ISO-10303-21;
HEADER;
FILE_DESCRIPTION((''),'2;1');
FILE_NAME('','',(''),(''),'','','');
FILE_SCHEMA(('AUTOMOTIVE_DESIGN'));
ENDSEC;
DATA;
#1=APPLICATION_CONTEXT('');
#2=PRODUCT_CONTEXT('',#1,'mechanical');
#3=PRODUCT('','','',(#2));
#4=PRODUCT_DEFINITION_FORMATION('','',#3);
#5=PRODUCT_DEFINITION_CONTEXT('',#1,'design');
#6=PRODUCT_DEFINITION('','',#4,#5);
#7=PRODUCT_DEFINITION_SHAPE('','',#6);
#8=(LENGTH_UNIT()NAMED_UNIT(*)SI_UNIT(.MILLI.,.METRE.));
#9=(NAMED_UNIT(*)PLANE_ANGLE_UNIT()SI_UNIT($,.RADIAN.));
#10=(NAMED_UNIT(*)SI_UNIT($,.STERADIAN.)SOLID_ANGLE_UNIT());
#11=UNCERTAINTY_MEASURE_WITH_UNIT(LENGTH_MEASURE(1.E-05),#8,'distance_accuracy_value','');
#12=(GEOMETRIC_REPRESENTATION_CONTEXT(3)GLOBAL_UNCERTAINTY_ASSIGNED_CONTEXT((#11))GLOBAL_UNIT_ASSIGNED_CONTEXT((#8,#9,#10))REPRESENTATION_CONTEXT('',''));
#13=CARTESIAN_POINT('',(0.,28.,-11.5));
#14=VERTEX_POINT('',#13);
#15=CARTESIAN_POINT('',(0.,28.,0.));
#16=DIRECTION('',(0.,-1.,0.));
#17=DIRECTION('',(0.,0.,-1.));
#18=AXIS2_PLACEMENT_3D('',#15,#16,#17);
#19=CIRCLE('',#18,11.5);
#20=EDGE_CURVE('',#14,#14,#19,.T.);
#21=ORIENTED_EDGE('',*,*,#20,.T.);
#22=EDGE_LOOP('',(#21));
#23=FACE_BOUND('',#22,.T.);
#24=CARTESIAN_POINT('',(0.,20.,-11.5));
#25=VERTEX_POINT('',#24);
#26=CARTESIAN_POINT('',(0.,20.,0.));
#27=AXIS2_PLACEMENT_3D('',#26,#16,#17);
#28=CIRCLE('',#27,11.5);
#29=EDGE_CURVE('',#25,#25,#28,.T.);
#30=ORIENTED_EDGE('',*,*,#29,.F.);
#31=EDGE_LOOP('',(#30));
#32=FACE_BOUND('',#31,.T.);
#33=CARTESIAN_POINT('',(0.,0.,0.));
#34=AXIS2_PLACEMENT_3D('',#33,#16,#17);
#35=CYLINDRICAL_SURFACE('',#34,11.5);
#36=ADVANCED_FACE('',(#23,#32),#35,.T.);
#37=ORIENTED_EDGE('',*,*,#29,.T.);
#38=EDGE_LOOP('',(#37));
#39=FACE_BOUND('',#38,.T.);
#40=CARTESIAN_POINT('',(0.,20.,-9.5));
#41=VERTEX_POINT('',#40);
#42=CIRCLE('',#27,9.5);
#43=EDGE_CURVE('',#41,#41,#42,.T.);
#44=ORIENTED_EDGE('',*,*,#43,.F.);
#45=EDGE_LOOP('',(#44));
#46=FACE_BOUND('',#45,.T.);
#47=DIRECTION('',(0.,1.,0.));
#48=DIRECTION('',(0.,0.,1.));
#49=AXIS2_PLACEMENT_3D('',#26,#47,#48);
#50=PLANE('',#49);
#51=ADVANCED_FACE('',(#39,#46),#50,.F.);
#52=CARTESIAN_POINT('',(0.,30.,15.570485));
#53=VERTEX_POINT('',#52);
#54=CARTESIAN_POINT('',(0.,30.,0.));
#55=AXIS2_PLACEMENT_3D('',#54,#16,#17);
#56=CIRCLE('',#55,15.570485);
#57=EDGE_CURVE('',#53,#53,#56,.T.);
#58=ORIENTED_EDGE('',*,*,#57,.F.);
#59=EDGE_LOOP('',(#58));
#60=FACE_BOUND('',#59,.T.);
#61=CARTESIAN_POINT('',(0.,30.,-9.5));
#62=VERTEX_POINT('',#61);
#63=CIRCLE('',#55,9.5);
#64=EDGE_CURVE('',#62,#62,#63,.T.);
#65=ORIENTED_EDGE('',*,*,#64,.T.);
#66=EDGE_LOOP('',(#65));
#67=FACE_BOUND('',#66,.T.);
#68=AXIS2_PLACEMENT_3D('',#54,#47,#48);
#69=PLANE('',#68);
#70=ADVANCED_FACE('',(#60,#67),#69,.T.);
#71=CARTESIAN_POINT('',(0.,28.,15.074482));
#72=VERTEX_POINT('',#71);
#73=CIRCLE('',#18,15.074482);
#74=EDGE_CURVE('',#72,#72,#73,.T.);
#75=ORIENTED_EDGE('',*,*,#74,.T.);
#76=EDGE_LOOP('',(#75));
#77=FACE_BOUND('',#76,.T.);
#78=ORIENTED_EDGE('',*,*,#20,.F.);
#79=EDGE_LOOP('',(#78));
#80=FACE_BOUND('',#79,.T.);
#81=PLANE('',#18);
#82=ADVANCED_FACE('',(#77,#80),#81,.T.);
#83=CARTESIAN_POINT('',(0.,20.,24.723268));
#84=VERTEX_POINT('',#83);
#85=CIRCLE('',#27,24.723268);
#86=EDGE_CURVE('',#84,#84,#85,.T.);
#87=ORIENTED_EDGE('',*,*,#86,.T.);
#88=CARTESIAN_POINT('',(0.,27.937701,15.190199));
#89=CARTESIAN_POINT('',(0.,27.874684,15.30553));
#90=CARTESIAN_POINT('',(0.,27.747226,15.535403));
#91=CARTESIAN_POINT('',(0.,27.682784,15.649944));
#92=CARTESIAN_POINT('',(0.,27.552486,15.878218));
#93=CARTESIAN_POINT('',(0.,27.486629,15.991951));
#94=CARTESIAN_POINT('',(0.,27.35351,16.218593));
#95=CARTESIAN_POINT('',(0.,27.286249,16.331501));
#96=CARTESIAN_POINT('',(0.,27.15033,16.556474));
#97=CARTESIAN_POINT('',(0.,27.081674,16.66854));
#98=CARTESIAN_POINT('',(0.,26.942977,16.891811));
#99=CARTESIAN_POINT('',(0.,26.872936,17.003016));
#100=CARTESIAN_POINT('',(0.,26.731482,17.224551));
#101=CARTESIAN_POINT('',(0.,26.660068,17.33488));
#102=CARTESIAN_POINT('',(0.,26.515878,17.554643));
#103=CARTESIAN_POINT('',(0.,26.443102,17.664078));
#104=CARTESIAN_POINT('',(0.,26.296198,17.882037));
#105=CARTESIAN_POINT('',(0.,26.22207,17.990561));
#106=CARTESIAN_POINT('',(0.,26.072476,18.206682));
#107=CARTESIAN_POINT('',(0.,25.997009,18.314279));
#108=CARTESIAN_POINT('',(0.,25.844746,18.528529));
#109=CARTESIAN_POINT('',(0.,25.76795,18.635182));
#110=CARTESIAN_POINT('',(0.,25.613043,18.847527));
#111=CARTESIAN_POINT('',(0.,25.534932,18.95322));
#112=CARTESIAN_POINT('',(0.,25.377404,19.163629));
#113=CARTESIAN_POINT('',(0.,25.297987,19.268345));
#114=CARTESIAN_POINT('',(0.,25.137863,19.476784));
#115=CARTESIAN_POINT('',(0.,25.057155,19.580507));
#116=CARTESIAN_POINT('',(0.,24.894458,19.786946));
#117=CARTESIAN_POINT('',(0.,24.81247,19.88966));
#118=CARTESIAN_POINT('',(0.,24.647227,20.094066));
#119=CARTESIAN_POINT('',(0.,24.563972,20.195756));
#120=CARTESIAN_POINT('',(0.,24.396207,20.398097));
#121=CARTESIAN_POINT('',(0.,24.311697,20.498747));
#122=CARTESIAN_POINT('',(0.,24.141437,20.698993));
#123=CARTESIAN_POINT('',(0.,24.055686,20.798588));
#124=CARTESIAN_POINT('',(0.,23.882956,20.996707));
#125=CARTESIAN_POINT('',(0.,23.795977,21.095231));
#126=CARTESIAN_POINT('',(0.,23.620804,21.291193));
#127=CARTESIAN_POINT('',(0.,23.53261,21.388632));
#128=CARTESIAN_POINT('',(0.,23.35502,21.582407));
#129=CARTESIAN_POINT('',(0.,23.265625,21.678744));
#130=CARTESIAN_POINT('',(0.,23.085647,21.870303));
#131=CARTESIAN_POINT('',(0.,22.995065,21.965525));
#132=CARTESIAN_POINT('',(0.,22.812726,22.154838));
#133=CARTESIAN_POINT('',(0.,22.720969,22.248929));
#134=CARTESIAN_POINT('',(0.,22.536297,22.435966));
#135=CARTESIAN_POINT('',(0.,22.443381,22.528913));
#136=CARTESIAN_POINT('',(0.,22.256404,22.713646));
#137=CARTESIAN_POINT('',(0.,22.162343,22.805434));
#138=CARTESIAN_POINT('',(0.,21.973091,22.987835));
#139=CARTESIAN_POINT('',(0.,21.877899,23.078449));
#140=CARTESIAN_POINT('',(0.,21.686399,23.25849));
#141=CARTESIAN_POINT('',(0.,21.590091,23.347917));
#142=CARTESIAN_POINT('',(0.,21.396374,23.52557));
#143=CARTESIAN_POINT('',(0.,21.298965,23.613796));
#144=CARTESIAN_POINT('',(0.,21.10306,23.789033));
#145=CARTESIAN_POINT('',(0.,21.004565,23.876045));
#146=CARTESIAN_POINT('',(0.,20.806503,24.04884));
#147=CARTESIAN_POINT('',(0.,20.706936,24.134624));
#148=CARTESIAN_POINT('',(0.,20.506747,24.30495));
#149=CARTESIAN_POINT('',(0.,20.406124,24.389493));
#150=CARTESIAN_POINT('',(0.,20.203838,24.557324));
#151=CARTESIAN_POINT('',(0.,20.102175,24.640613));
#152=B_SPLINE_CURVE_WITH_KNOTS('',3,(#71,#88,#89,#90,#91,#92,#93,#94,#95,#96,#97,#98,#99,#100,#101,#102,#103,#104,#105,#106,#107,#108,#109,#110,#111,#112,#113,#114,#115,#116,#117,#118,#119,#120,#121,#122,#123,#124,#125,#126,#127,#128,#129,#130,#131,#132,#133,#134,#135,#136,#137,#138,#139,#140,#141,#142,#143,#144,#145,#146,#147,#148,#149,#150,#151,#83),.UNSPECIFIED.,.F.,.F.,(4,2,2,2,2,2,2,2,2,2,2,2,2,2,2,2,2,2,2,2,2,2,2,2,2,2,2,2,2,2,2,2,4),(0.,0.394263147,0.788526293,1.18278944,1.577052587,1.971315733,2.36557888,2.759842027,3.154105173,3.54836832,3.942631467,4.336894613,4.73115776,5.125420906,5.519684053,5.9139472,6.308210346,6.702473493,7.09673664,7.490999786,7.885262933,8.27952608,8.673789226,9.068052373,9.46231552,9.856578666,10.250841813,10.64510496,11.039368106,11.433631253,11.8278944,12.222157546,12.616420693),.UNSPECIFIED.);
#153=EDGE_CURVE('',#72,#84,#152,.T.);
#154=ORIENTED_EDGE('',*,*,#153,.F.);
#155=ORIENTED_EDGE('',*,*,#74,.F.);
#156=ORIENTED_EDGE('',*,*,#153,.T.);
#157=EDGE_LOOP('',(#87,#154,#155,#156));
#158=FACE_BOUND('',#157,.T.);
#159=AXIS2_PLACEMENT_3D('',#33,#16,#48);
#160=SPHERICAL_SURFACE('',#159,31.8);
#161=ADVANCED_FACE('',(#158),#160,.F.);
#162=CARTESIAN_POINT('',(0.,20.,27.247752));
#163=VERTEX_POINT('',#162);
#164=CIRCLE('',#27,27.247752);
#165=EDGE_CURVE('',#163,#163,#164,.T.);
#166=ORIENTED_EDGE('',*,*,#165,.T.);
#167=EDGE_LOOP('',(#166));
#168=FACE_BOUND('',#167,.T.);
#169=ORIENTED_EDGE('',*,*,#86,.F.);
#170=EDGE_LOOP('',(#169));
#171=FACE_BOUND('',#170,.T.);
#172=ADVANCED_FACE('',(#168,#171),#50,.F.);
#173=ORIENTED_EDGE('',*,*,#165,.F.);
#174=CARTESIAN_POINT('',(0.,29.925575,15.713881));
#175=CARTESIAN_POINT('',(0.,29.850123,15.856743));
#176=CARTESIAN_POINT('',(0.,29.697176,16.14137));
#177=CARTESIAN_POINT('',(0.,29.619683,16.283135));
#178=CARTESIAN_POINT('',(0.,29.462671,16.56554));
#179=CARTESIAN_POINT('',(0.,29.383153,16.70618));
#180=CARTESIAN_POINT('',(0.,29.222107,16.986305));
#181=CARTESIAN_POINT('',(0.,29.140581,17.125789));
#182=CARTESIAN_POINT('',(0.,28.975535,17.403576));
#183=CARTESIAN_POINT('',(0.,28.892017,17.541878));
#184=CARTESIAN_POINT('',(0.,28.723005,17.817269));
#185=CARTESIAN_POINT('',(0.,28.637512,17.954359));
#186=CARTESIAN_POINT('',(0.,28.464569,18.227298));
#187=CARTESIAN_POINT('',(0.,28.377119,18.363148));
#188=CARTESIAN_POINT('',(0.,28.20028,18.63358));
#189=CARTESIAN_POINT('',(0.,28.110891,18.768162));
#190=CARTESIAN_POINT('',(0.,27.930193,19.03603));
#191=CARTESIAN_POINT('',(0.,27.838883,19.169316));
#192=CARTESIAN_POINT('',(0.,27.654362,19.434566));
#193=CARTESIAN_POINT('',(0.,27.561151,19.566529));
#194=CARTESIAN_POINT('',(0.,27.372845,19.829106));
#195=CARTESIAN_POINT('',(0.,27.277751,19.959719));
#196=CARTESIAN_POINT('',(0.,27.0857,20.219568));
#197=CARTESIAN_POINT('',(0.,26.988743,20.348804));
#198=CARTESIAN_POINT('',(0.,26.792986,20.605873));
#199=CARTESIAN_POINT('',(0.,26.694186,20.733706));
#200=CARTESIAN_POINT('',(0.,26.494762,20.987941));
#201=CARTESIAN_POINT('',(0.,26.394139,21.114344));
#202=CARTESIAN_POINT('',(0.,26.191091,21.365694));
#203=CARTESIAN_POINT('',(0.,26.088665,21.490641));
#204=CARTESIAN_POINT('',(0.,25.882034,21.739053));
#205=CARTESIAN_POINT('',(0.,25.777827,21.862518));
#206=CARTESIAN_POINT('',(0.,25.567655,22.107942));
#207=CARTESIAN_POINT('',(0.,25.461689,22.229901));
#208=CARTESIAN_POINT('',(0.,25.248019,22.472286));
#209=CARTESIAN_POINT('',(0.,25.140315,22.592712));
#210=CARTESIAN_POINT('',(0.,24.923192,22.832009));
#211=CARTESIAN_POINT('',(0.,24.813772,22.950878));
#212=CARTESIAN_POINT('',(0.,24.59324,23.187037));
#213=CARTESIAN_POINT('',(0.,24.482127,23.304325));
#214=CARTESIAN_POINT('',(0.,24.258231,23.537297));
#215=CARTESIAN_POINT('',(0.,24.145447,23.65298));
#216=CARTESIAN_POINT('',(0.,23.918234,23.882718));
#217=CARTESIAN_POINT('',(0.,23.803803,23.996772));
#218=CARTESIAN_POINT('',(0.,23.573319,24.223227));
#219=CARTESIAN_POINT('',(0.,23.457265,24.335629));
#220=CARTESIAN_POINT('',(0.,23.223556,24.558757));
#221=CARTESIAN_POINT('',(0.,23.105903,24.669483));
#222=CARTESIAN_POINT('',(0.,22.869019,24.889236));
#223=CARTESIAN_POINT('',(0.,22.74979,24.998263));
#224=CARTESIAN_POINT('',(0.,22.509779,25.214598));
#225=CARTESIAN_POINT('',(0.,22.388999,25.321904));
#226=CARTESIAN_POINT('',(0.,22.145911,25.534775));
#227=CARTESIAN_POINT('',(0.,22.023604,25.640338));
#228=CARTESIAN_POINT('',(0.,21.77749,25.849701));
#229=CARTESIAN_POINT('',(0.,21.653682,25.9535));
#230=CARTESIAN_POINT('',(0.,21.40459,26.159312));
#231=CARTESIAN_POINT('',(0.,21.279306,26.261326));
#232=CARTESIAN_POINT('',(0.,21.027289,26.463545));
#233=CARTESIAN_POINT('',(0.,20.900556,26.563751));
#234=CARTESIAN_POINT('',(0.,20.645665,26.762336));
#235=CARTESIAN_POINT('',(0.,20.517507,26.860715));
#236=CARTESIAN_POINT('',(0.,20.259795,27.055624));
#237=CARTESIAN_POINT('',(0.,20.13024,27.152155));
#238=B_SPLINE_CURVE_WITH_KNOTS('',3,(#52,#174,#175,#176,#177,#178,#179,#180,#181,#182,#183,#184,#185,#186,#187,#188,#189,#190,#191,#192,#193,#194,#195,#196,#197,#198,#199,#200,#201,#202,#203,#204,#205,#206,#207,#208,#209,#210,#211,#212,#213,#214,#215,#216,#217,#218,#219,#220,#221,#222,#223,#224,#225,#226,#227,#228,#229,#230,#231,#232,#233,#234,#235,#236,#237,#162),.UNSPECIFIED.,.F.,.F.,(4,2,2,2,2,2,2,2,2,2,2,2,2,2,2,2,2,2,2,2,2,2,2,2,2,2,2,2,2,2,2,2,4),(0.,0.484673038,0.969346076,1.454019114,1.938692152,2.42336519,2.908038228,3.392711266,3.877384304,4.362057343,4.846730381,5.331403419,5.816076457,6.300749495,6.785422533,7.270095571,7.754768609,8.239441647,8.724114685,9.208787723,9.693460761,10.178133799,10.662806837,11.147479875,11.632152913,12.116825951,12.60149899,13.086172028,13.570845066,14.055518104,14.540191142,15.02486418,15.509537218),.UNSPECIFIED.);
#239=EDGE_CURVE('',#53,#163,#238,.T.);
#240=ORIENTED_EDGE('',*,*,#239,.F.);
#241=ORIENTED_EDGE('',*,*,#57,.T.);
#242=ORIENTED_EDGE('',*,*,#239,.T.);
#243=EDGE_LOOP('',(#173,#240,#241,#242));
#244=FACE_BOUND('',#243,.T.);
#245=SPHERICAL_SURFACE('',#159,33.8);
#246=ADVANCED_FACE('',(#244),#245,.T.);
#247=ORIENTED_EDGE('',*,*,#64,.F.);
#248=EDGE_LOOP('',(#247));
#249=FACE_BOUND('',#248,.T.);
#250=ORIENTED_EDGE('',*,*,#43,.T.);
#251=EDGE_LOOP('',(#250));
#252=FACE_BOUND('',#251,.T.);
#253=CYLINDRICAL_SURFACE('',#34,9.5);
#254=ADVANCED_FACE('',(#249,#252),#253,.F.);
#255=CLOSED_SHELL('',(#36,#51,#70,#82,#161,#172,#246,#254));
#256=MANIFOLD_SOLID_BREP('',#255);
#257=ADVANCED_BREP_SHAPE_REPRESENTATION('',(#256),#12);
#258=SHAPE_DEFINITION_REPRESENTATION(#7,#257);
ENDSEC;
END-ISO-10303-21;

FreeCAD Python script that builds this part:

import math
import FreeCAD as App
import Part
import Sketcher

doc = App.newDocument("Part")
body = doc.addObject("PartDesign::Body", "Body")

# Sketch on YZ plane
sketch1 = doc.addObject("Sketcher::SketchObject", "Sketch")
body.addObject(sketch1)
sketch1.AttachmentSupport = (doc.YZ_Plane, [""])
sketch1.MapMode = "FlatFace"
sketch1.addGeometry(Part.LineSegment(App.Vector(28, 11.5, 0), App.Vector(20, 11.5, 0)), False)
sketch1.addGeometry(Part.LineSegment(App.Vector(20, 11.5, 0), App.Vector(20, 9.5, 0)), False)
sketch1.addGeometry(Part.LineSegment(App.Vector(20, 9.5, 0), App.Vector(30, 9.5, 0)), False)
sketch1.addGeometry(Part.LineSegment(App.Vector(30, 9.5, 0), App.Vector(30, 15.6, 0)), False)
sketch1.addGeometry(Part.ArcOfCircle(Part.Circle(App.Vector(0, 0, 0), App.Vector(0, 0, 1), 33.8), math.radians(27), math.radians(54)), False)
sketch1.addGeometry(Part.LineSegment(App.Vector(20, 27.2, 0), App.Vector(20, 24.7, 0)), False)
sketch1.addGeometry(Part.ArcOfCircle(Part.Circle(App.Vector(0, 0, 0), App.Vector(0, 0, 1), 31.8), math.radians(28), math.radians(51)), False)
sketch1.addGeometry(Part.LineSegment(App.Vector(28, 15.1, 0), App.Vector(28, 11.5, 0)), False)
sketch1.addConstraint(Sketcher.Constraint("Coincident", 0, 2, 1, 1))
sketch1.addConstraint(Sketcher.Constraint("Coincident", 1, 2, 2, 1))
sketch1.addConstraint(Sketcher.Constraint("Coincident", 2, 2, 3, 1))
sketch1.addConstraint(Sketcher.Constraint("Coincident", 3, 2, 4, 1))
sketch1.addConstraint(Sketcher.Constraint("Coincident", 4, 2, 5, 1))
sketch1.addConstraint(Sketcher.Constraint("Coincident", 5, 2, 6, 2))
sketch1.addConstraint(Sketcher.Constraint("Coincident", 6, 1, 7, 1))
sketch1.addConstraint(Sketcher.Constraint("Coincident", 7, 2, 0, 1))
sketch1.addConstraint(Sketcher.Constraint("Horizontal", 0))
sketch1.addConstraint(Sketcher.Constraint("Vertical", 1))
sketch1.addConstraint(Sketcher.Constraint("Horizontal", 2))
sketch1.addConstraint(Sketcher.Constraint("Vertical", 3))
sketch1.addConstraint(Sketcher.Constraint("Vertical", 5))
sketch1.addConstraint(Sketcher.Constraint("Vertical", 7))
sketch1.addConstraint(Sketcher.Constraint("Coincident", 4, 3, -1, 1))
sketch1.addConstraint(Sketcher.Constraint("Coincident", 6, 3, -1, 1))
sketch1.addConstraint(Sketcher.Constraint("Vertical", 1, 2, 4, 2))
sketch1.addConstraint(Sketcher.Constraint("Radius", 4, 33.8))
sketch1.addConstraint(Sketcher.Constraint("Radius", 6, 31.8))
sketch1.addConstraint(Sketcher.Constraint("DistanceX", 0, 2, 0, 1, 8.0))
sketch1.addConstraint(Sketcher.Constraint("DistanceX", 2, 1, 2, 2, 10.0))
sketch1.addConstraint(Sketcher.Constraint("DistanceY", 1, 2, 1, 1, 2.0))
sketch1.addConstraint(Sketcher.Constraint("DistanceX", -1, 1, 0, 2, 20.0))
sketch1.addConstraint(Sketcher.Constraint("DistanceY", -1, 1, 0, 2, 11.5))
revolution = doc.addObject("PartDesign::Revolution", "Revolution")
body.addObject(revolution)
revolution.Profile = sketch1
revolution.ReferenceAxis = (sketch1, ["H_Axis"])
revolution.Angle = 360

doc.recompute()
